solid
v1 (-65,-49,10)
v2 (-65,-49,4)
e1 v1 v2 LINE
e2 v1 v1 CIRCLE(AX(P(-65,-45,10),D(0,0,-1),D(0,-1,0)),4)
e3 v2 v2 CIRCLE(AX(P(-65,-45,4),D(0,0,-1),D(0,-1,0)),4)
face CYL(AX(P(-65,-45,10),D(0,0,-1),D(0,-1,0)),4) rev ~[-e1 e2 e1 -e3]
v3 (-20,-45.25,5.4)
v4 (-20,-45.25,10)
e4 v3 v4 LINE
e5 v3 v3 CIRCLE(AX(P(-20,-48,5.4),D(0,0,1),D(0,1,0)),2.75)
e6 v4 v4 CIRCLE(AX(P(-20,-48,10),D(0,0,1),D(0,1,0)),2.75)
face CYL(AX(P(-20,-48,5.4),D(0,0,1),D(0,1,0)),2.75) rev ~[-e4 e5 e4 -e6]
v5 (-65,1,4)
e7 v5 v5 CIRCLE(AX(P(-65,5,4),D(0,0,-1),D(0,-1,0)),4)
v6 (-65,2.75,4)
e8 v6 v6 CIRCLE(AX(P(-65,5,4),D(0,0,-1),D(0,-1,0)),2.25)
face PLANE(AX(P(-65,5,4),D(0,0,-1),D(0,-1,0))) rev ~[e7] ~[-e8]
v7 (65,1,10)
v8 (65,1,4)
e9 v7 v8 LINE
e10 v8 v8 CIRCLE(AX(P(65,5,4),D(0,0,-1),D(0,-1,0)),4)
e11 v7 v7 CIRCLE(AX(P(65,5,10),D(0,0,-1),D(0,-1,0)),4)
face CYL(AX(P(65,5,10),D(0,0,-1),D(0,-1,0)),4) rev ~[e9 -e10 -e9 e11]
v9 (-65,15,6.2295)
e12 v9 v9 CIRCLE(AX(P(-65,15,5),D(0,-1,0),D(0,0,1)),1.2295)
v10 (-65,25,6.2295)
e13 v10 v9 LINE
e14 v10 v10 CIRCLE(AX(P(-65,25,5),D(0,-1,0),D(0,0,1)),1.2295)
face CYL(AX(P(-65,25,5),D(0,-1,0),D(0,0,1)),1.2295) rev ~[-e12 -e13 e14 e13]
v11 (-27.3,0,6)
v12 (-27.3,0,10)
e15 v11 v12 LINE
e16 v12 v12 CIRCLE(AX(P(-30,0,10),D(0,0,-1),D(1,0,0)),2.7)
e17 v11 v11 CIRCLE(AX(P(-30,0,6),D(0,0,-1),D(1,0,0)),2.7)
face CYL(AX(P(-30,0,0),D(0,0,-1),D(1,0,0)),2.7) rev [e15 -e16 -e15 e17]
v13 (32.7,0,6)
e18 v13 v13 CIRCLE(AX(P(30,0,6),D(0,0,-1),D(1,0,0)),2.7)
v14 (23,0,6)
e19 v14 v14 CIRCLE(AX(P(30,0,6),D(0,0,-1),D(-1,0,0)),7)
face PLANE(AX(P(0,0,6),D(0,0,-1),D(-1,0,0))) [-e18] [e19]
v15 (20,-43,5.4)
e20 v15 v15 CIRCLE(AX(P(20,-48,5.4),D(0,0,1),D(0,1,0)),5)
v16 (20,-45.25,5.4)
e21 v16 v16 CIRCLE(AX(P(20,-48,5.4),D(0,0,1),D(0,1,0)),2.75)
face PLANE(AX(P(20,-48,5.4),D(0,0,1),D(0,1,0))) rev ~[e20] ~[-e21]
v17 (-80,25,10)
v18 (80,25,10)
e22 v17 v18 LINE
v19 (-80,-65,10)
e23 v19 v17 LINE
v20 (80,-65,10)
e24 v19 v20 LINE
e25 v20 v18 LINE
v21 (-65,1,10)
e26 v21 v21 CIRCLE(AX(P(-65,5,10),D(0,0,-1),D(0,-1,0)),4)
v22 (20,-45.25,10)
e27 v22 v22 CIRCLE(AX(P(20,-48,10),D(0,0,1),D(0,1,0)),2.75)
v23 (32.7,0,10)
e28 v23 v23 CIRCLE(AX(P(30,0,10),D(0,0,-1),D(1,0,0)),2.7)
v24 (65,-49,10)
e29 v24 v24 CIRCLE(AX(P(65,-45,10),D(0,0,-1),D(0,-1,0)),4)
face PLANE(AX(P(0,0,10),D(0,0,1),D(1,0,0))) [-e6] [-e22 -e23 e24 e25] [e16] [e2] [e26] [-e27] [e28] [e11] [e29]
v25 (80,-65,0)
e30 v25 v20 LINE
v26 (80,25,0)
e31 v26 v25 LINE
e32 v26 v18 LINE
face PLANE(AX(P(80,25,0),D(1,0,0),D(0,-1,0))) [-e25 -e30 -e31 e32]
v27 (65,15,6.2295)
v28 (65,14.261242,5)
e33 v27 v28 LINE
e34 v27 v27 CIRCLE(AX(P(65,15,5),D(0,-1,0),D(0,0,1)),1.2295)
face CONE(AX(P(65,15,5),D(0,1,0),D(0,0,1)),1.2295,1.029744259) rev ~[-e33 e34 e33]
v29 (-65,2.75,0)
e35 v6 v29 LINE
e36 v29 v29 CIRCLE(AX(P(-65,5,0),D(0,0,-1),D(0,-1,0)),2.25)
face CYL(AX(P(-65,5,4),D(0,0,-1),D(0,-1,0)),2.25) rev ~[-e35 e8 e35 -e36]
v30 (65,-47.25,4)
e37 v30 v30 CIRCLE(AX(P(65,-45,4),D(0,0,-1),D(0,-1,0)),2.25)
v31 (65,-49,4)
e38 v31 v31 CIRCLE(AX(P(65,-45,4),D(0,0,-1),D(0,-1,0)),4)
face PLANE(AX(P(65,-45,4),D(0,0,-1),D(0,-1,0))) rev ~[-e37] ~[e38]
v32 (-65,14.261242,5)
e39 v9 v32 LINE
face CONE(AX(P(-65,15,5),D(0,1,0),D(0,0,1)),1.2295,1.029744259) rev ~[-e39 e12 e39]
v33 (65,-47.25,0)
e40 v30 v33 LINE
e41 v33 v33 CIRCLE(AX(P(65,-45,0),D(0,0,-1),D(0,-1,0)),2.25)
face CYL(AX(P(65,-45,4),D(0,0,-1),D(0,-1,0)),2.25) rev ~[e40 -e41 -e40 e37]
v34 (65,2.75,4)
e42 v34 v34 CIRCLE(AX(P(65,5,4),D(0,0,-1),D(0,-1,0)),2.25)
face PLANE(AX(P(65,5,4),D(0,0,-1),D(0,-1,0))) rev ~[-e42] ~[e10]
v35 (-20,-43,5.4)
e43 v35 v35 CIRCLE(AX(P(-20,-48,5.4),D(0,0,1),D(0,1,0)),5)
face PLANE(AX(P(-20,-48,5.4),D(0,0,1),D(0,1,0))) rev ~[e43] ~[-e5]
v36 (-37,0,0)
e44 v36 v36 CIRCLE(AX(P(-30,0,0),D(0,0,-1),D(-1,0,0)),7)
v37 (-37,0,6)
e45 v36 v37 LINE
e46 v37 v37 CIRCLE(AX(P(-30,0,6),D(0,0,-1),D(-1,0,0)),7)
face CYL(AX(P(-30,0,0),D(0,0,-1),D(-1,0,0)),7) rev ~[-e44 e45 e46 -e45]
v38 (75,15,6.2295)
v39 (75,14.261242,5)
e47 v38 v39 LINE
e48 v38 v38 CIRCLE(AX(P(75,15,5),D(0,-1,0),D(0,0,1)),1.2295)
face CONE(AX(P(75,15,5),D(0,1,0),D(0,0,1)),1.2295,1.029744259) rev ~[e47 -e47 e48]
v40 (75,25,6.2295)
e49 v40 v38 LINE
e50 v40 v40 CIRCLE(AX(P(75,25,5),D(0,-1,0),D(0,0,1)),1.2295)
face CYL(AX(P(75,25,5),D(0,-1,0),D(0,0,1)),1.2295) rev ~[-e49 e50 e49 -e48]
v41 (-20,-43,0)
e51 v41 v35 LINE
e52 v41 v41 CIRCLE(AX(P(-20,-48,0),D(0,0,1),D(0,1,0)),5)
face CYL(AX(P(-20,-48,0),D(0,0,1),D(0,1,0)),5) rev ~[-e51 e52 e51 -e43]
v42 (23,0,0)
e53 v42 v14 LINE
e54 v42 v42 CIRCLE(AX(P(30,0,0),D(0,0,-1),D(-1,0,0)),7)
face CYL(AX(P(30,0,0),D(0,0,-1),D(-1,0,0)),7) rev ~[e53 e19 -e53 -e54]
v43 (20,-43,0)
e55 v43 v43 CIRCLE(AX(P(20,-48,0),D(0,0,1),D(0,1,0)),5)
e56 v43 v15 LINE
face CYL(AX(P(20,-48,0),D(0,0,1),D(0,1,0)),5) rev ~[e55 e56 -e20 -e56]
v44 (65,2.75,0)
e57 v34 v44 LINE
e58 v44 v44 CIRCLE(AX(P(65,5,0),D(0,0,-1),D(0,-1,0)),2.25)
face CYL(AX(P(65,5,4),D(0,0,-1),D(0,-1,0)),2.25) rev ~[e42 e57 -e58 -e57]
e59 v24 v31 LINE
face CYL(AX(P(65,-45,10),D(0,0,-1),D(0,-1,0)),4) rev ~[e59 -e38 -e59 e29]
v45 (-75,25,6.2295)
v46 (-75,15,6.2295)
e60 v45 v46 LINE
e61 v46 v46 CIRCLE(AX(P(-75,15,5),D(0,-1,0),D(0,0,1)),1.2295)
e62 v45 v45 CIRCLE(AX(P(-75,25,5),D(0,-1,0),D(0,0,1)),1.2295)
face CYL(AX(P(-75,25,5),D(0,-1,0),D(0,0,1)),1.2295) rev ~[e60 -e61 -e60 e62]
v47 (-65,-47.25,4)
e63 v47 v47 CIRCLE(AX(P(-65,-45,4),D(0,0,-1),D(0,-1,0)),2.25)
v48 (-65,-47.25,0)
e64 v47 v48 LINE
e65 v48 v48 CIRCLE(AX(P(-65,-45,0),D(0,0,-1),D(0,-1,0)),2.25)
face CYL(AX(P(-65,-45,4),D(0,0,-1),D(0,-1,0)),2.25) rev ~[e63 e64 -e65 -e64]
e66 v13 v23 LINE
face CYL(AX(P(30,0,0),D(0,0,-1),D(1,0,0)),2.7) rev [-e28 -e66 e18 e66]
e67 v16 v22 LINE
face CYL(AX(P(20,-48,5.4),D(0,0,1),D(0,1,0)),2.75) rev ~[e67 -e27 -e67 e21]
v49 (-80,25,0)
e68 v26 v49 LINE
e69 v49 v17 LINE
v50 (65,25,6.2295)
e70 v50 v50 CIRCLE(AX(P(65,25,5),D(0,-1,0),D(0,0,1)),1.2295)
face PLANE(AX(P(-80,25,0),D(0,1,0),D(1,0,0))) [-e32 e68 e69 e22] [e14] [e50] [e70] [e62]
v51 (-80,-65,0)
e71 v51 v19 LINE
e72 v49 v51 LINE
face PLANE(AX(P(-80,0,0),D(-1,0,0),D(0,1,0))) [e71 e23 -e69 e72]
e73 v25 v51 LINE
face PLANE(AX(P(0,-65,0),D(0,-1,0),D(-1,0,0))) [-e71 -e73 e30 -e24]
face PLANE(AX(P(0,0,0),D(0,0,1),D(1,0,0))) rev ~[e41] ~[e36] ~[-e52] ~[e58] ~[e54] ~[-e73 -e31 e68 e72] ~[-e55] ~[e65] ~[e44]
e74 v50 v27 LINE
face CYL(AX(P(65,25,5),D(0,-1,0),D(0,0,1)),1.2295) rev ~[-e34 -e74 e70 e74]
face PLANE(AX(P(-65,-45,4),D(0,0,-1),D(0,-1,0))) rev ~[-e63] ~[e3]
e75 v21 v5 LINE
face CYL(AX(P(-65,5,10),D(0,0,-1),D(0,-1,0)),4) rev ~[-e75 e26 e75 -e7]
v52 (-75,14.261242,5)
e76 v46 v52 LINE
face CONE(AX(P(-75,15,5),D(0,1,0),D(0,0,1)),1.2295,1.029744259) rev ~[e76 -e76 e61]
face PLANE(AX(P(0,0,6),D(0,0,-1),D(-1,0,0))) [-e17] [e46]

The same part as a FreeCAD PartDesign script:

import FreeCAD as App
import Part
import Sketcher

V = App.Vector


def add_polygon(sketch, points):
    """Adds a closed chain of lines whose ends are joined by coincident constraints."""
    first, n = sketch.GeometryCount, len(points)
    for a, b in zip(points, points[1:] + points[:1]):
        sketch.addGeometry(Part.LineSegment(App.Vector(*a, 0), App.Vector(*b, 0)), False)
    for i in range(n):
        sketch.addConstraint(Sketcher.Constraint("Coincident", first + i, 2, first + (i + 1) % n, 1))

doc = App.newDocument("Part")
body = doc.addObject("PartDesign::Body", "Body")

# Sketch on XY plane
sketch1 = body.newObject("Sketcher::SketchObject", "Sketch")
sketch1.AttachmentSupport = (doc.getObject("XY_Plane"), [""])
sketch1.MapMode = "FlatFace"
add_polygon(sketch1, [(-80, 25), (-80, -65), (80, -65), (80, 25)])  # lines 0-3
sketch1.addGeometry(Part.Circle(V(-30, 0, 0), V(0, 0, 1), 2.7), False)  # 4
sketch1.addGeometry(Part.Circle(V(30, 0, 0), V(0, 0, 1), 2.7), False)  # 5
sketch1.addConstraint(Sketcher.Constraint("Vertical", 0))
sketch1.addConstraint(Sketcher.Constraint("Horizontal", 1))
sketch1.addConstraint(Sketcher.Constraint("Vertical", 2))
sketch1.addConstraint(Sketcher.Constraint("Horizontal", 3))
sketch1.addConstraint(Sketcher.Constraint("Equal", 4, 5))
sketch1.addConstraint(Sketcher.Constraint("Symmetric", 4, 3, 5, 3, -1, 1))
sketch1.addConstraint(Sketcher.Constraint("PointOnObject", 4, 3, -1))
sketch1.addConstraint(Sketcher.Constraint("Diameter", 4, 5.4))
sketch1.addConstraint(Sketcher.Constraint("DistanceX", 1, 1, 1, 2, 160.0))
sketch1.addConstraint(Sketcher.Constraint("DistanceY", 0, 2, 0, 1, 90.0))
sketch1.addConstraint(Sketcher.Constraint("DistanceY", -1, 1, 2, 2, 25.0))
sketch1.addConstraint(Sketcher.Constraint("DistanceX", 4, 3, 5, 3, 60.0))
sketch1.addConstraint(Sketcher.Constraint("DistanceX", 0, 2, -1, 1, 80.0))
pad1 = body.newObject("PartDesign::Pad", "Pad")
pad1.Profile = sketch1
pad1.Length = 10

# Sketch on XY plane
sketch2 = body.newObject("Sketcher::SketchObject", "Sketch001")
sketch2.AttachmentSupport = (doc.getObject("XY_Plane"), [""])
sketch2.MapMode = "FlatFace"
sketch2.addGeometry(Part.Circle(V(30, 0, 0), V(0, 0, 1), 7), False)
sketch2.addGeometry(Part.Circle(V(30, 0, 0), V(0, 0, 1), 2.7), False)
sketch2.addGeometry(Part.Circle(V(-30, 0, 0), V(0, 0, 1), 7), False)
sketch2.addGeometry(Part.Circle(V(-30, 0, 0), V(0, 0, 1), 2.7), False)
sketch2.addConstraint(Sketcher.Constraint("Coincident", 1, 3, 0, 3))
sketch2.addConstraint(Sketcher.Constraint("Coincident", 3, 3, 2, 3))
sketch2.addConstraint(Sketcher.Constraint("Equal", 0, 2))
sketch2.addConstraint(Sketcher.Constraint("Equal", 1, 3))
sketch2.addConstraint(Sketcher.Constraint("Symmetric", 0, 3, 2, 3, -1, 1))
sketch2.addConstraint(Sketcher.Constraint("PointOnObject", 0, 3, -1))
sketch2.addConstraint(Sketcher.Constraint("Diameter", 0, 14.0))
sketch2.addConstraint(Sketcher.Constraint("Diameter", 1, 5.4))
sketch2.addConstraint(Sketcher.Constraint("DistanceX", -1, 1, 0, 3, 30.0))
pocket1 = body.newObject("PartDesign::Pocket", "Pocket")
pocket1.Profile = sketch2
pocket1.Length = 6
pocket1.Reversed = True

# Sketch on XY plane
sketch3 = body.newObject("Sketcher::SketchObject", "Sketch002")
sketch3.AttachmentSupport = (doc.getObject("XY_Plane"), [""])
sketch3.MapMode = "FlatFace"
sketch3.addGeometry(Part.Circle(V(20, -48, 0), V(0, 0, 1), 2.8), False)
sketch3.addGeometry(Part.Circle(V(-20, -48, 0), V(0, 0, 1), 2.8), False)
sketch3.addConstraint(Sketcher.Constraint("Equal", 0, 1))
sketch3.addConstraint(Sketcher.Constraint("Symmetric", 0, 3, 1, 3, -2))
sketch3.addConstraint(Sketcher.Constraint("Diameter", 0, 5.5))
sketch3.addConstraint(Sketcher.Constraint("DistanceX", -1, 1, 0, 3, 20.0))
sketch3.addConstraint(Sketcher.Constraint("DistanceY", 0, 3, -1, 1, 48.0))
doc.recompute()
hole = body.newObject("PartDesign::Hole", "Hole")
hole.Profile = sketch3
hole.ThreadType = "None"
hole.Diameter = 5.5
hole.DepthType = "ThroughAll"
hole.HoleCutType = "Counterbore"
hole.HoleCutDiameter = 10
hole.HoleCutDepth = 5.4
hole.Reversed = True

# Sketch on XZ plane
sketch4 = body.newObject("Sketcher::SketchObject", "Sketch003")
sketch4.AttachmentSupport = (doc.getObject("XZ_Plane"), [""])
sketch4.MapMode = "FlatFace"
sketch4.AttachmentOffset = App.Placement(V(0, 0, -25), App.Rotation())
sketch4.addGeometry(Part.Circle(V(75, 5, 0), V(0, 0, 1), 1.2), False)
sketch4.addGeometry(Part.Circle(V(65, 5, 0), V(0, 0, 1), 1.2), False)
sketch4.addGeometry(Part.Circle(V(-75, 5, 0), V(0, 0, 1), 1.2), False)
sketch4.addGeometry(Part.Circle(V(-65, 5, 0), V(0, 0, 1), 1.2), False)
sketch4.addConstraint(Sketcher.Constraint("Equal", 0, 1))
sketch4.addConstraint(Sketcher.Constraint("Equal", 1, 2))
sketch4.addConstraint(Sketcher.Constraint("Equal", 2, 3))
sketch4.addConstraint(Sketcher.Constraint("Symmetric", 0, 3, 2, 3, -2))
sketch4.addConstraint(Sketcher.Constraint("Symmetric", 1, 3, 3, 3, -2))
sketch4.addConstraint(Sketcher.Constraint("Horizontal", 0, 3, 1, 3))
sketch4.addConstraint(Sketcher.Constraint("Diameter", 0, 2.459))
sketch4.addConstraint(Sketcher.Constraint("DistanceX", -1, 1, 0, 3, 75.0))
sketch4.addConstraint(Sketcher.Constraint("DistanceY", -1, 1, 0, 3, 5.0))
sketch4.addConstraint(Sketcher.Constraint("DistanceX", -1, 1, 1, 3, 65.0))
doc.recompute()
hole2 = body.newObject("PartDesign::Hole", "Hole001")
hole2.Profile = sketch4
hole2.ThreadType = "None"
hole2.Diameter = 2.459
hole2.DepthType = "Dimension"
hole2.Depth = 10
hole2.DrillPoint = "Angled"
hole2.DrillPointAngle = 118
hole2.Reversed = True

# Sketch on XY plane
sketch5 = body.newObject("Sketcher::SketchObject", "Sketch004")
sketch5.AttachmentSupport = (doc.getObject("XY_Plane"), [""])
sketch5.MapMode = "FlatFace"
sketch5.AttachmentOffset = App.Placement(V(0, 0, 10), App.Rotation())
sketch5.addGeometry(Part.Circle(V(-65, 5, 0), V(0, 0, 1), 2.2), False)
sketch5.addGeometry(Part.Circle(V(65, 5, 0), V(0, 0, 1), 2.2), False)
sketch5.addGeometry(Part.Circle(V(65, -45, 0), V(0, 0, 1), 2.2), False)
sketch5.addGeometry(Part.Circle(V(-65, -45, 0), V(0, 0, 1), 2.2), False)
sketch5.addConstraint(Sketcher.Constraint("Equal", 0, 1))
sketch5.addConstraint(Sketcher.Constraint("Equal", 1, 2))
sketch5.addConstraint(Sketcher.Constraint("Equal", 2, 3))
sketch5.addConstraint(Sketcher.Constraint("Symmetric", 0, 3, 1, 3, -2))
sketch5.addConstraint(Sketcher.Constraint("Symmetric", 2, 3, 3, 3, -2))
sketch5.addConstraint(Sketcher.Constraint("Vertical", 1, 3, 2, 3))
sketch5.addConstraint(Sketcher.Constraint("Diameter", 0, 4.5))
sketch5.addConstraint(Sketcher.Constraint("DistanceX", 0, 3, -1, 1, 65.0))
sketch5.addConstraint(Sketcher.Constraint("DistanceY", -1, 1, 0, 3, 5.0))
sketch5.addConstraint(Sketcher.Constraint("DistanceY", 2, 3, -1, 1, 45.0))
doc.recompute()
hole3 = body.newObject("PartDesign::Hole", "Hole002")
hole3.Profile = sketch5
hole3.ThreadType = "None"
hole3.Diameter = 4.5
hole3.DepthType = "ThroughAll"
hole3.HoleCutType = "Counterbore"
hole3.HoleCutDiameter = 8
hole3.HoleCutDepth = 6

doc.recompute()
